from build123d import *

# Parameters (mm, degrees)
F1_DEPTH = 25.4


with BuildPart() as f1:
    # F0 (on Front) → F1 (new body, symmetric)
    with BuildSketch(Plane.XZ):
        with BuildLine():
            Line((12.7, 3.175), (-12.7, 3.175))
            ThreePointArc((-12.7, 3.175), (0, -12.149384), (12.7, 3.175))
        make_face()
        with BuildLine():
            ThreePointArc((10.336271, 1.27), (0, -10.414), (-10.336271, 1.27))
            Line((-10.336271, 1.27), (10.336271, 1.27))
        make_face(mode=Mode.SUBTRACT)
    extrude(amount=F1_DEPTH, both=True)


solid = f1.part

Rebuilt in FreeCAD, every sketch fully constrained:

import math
import FreeCAD as App
import Part
import Sketcher

V = App.Vector
Q = App.Units.Quantity

doc = App.newDocument("Part")
body = doc.addObject("PartDesign::Body", "Body")

sketch1 = body.newObject("Sketcher::SketchObject", "Sketch")
sketch1.AttachmentSupport = (doc.getObject("XZ_Plane"), [""])
sketch1.MapMode = "FlatFace"
sketch1.addGeometry(Part.LineSegment(V(12.7, 3.175, 0), V(-12.7, 3.175, 0)), False)
sketch1.addGeometry(Part.ArcOfCircle(Part.Circle(V(0, 0.775336, 0), V(0, 0, 1), 12.92472), math.radians(169.300113), math.radians(370.699887)), False)
sketch1.addGeometry(Part.LineSegment(V(-10.336271, 1.27, 0), V(10.336271, 1.27, 0)), False)
sketch1.addGeometry(Part.ArcOfCircle(Part.Circle(V(0, 0, 0), V(0, 0, 1), 10.414), math.radians(172.995274), math.radians(367.004726)), False)
sketch1.addConstraint(Sketcher.Constraint("Coincident", 0, 1, 1, 2))
sketch1.addConstraint(Sketcher.Constraint("Coincident", 1, 1, 0, 2))
sketch1.addConstraint(Sketcher.Constraint("Coincident", 2, 1, 3, 1))
sketch1.addConstraint(Sketcher.Constraint("Coincident", 3, 2, 2, 2))
sketch1.addConstraint(Sketcher.Constraint("Horizontal", 0))
sketch1.addConstraint(Sketcher.Constraint("Horizontal", 2))
sketch1.addConstraint(Sketcher.Constraint("Coincident", 3, 3, -1, 1))
sketch1.addConstraint(Sketcher.Constraint("PointOnObject", 1, 3, -2))
sketch1.addConstraint(Sketcher.Constraint("DistanceX", 0, 2, 0, 1, Q("1 in")))
sketch1.addConstraint(Sketcher.Constraint("Radius", 3, Q("0.41 in")))
sketch1.addConstraint(Sketcher.Constraint("DistanceY", -1, 1, 2, 1, Q("0.05 in")))
sketch1.addConstraint(Sketcher.Constraint("DistanceY", -1, 1, 0, 1, Q("0.125 in")))
sketch1.addConstraint(Sketcher.Constraint("Radius", 1, 12.92472))
pad1 = body.newObject("PartDesign::Pad", "Pad")
pad1.Profile = sketch1
pad1.Length = Q("2 in")
pad1.Midplane = True

doc.recompute()
